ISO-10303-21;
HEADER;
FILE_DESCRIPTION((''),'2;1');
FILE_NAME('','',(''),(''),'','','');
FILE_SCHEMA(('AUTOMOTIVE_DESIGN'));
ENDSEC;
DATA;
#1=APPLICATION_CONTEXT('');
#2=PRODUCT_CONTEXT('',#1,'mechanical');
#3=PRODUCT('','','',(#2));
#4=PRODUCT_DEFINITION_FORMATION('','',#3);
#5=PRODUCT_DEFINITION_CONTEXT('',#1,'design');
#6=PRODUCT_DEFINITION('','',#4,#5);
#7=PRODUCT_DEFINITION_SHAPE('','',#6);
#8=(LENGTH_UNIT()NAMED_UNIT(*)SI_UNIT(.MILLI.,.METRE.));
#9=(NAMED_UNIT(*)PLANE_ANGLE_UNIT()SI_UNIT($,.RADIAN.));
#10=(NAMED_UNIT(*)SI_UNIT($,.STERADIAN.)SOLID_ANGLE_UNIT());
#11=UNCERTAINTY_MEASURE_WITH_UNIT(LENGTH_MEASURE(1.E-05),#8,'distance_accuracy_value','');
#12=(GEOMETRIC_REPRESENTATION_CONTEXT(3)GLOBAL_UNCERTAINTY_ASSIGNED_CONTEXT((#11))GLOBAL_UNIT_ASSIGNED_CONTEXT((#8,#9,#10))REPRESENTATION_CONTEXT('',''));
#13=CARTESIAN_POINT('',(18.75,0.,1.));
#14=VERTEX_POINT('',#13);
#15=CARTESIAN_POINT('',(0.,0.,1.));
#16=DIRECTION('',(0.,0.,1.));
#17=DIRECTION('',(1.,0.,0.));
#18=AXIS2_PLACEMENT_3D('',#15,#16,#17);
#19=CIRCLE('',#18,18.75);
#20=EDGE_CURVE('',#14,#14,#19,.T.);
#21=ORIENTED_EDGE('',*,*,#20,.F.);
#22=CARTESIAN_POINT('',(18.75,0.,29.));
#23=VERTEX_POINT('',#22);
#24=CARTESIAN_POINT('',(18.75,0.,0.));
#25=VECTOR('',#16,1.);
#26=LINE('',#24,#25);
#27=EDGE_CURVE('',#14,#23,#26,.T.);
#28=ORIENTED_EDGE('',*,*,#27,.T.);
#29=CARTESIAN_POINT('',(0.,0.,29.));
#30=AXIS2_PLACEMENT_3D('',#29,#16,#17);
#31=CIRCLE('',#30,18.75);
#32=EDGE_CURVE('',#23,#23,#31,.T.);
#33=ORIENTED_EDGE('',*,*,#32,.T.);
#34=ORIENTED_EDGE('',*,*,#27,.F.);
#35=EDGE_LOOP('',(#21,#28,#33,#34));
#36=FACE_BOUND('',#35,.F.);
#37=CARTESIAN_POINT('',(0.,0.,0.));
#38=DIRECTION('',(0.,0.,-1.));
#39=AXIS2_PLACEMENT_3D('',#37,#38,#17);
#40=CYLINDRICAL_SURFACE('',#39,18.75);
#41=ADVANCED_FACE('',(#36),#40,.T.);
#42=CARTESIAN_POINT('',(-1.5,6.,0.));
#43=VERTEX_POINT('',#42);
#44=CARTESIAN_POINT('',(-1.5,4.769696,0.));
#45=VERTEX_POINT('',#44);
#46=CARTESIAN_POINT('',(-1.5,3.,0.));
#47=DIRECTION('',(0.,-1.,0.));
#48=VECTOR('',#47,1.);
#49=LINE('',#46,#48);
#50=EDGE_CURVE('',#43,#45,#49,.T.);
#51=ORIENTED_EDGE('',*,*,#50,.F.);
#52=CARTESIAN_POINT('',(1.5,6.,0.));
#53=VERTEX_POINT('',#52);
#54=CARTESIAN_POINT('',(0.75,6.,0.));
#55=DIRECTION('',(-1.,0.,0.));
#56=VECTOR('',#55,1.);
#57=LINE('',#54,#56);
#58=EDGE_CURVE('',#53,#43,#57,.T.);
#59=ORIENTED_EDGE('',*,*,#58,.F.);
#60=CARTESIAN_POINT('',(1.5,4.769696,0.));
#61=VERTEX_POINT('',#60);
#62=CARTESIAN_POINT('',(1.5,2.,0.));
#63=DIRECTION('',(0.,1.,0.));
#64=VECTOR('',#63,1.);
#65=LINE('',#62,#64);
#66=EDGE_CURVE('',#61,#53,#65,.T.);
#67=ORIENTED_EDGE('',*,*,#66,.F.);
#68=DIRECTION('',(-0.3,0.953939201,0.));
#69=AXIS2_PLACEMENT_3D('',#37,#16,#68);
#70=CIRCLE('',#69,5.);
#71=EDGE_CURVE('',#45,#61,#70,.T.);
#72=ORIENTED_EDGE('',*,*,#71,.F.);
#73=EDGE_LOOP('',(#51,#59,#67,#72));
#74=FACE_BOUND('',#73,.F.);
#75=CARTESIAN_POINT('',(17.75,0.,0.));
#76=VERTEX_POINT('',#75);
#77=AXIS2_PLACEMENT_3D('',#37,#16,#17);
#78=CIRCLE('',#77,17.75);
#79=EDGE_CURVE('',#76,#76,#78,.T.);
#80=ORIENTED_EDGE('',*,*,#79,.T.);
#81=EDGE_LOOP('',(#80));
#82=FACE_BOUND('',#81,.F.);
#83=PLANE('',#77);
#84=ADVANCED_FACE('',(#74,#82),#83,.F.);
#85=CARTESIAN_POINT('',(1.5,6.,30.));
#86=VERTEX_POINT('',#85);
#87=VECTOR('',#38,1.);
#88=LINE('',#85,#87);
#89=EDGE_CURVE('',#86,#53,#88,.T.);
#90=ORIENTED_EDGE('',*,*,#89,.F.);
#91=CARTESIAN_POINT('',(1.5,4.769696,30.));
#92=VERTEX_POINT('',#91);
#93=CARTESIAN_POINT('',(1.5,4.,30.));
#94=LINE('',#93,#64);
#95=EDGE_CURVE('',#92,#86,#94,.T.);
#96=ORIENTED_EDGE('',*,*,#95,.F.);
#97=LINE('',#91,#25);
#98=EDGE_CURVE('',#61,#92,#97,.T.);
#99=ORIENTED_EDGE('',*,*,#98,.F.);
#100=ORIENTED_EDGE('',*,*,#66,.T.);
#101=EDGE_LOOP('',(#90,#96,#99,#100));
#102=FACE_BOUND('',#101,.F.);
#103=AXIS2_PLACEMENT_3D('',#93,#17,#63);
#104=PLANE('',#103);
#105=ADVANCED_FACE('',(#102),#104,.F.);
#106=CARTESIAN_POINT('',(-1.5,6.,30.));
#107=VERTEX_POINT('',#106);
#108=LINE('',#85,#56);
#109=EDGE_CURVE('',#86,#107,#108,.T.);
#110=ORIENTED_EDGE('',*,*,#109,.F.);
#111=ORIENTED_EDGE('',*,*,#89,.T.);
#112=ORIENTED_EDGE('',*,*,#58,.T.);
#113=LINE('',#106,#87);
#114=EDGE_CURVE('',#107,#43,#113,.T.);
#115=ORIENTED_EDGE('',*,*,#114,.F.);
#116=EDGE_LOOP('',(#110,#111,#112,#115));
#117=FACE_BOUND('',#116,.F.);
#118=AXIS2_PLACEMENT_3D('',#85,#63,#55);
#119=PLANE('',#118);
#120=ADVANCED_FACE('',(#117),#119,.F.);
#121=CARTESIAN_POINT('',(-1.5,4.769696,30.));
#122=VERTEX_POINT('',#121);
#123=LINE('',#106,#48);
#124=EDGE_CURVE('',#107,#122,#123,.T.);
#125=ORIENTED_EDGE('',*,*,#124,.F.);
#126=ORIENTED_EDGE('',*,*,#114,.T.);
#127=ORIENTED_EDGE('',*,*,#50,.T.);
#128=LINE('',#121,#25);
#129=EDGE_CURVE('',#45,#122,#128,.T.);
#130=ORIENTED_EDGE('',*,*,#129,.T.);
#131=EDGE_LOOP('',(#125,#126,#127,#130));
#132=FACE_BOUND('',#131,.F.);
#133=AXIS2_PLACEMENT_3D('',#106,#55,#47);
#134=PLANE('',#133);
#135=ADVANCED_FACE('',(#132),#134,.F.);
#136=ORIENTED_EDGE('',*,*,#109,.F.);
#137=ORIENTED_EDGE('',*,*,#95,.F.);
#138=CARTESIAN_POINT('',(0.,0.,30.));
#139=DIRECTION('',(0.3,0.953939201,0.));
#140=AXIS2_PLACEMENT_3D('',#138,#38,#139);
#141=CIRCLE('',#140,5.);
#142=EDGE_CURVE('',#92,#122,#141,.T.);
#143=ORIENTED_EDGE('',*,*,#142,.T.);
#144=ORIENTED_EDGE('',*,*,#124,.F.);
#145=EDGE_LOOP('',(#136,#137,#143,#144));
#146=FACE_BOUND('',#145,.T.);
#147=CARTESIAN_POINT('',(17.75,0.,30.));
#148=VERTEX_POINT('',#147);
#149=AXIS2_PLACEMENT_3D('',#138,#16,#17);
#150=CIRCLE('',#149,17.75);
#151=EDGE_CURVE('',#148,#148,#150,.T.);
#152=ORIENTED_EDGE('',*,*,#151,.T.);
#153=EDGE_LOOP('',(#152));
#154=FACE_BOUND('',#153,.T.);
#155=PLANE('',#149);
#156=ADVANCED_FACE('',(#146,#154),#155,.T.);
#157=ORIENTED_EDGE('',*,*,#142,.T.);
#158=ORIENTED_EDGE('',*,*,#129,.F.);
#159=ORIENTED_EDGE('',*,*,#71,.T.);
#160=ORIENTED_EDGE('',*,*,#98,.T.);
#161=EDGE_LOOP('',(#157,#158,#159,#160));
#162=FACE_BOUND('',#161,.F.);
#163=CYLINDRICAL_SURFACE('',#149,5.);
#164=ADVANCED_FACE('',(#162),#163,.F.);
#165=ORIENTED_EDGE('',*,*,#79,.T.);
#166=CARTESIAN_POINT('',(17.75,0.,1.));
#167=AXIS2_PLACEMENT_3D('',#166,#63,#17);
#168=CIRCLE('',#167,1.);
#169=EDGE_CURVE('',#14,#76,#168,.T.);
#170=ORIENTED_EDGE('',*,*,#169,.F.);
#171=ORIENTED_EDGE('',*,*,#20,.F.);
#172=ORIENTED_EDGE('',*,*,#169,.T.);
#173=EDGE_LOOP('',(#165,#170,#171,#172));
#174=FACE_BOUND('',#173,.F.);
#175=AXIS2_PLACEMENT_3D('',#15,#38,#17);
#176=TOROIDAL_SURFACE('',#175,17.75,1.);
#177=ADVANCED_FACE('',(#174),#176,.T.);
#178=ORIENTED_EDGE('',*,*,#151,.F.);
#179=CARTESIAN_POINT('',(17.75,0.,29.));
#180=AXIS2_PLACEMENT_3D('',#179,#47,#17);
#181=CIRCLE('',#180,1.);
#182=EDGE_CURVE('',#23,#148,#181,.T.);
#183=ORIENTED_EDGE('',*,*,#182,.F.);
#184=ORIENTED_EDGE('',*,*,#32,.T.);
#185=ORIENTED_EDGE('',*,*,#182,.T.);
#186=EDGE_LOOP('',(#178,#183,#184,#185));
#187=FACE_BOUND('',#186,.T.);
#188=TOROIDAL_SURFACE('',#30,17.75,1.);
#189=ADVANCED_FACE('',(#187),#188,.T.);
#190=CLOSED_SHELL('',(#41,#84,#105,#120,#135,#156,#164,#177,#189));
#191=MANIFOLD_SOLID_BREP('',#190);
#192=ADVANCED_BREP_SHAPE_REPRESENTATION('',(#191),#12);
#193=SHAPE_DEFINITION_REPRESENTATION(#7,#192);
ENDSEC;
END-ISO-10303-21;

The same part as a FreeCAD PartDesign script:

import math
import FreeCAD as App
import Part
import Sketcher
from FreeCAD import Vector
Q = App.Units.Quantity


def edges_at(feature, points):
    """Names of the edges that pass closest to the given points."""
    edges = feature.Shape.Edges
    near = lambda p: min(range(len(edges)), key=lambda i: edges[i].distToShape(Part.Vertex(*p))[0])
    return sorted({f"Edge{near(p) + 1}" for p in points})

doc = App.newDocument("Part")
params = doc.addObject("Spreadsheet::Sheet", "Params")
for row, (alias, value) in enumerate([
    ("sketch1_diameter", "37.5 mm"),
    ("pad1_length", "30 mm"),
    ("sketch2_radius", "5 mm"),
    ("sketch2_width", "3 mm"),
    ("fillet_radius", "1 mm"),
], start=1):
    params.set(f"A{row}", alias)
    params.set(f"B{row}", "=" + value)
    params.setAlias(f"B{row}", alias)

body = doc.addObject("PartDesign::Body", "Body")

sketch1 = doc.addObject("Sketcher::SketchObject", "Sketch")
body.addObject(sketch1)
sketch1.AttachmentSupport = (doc.XY_Plane, [""])
sketch1.MapMode = "FlatFace"
sketch1.addGeometry(Part.Circle(Vector(0, 0, 0), Vector(0, 0, 1), 18.75), False)
sketch1.addConstraint([
    Sketcher.Constraint("Coincident", 0, 3, -1, 1),
    Sketcher.Constraint("Diameter", 0, Q("37.5 mm")),
])
sketch1.setExpression("Constraints[1]", "Params.sketch1_diameter")
pad1 = doc.addObject("PartDesign::Pad", "Pad")
body.addObject(pad1)
pad1.Profile = sketch1
pad1.setExpression("Length", "Params.pad1_length")

sketch2 = doc.addObject("Sketcher::SketchObject", "Sketch001")
body.addObject(sketch2)
sketch2.AttachmentSupport = (doc.XY_Plane, [""])
sketch2.MapMode = "FlatFace"
sketch2.AttachmentOffset = App.Placement(Vector(0, 0, 30), App.Rotation())
sketch2.addGeometry([
    Part.ArcOfCircle(Part.Circle(Vector(0, 0, 0), Vector(0, 0, 1), 5), math.radians(107.457603), math.radians(432.542397)),
    Part.LineSegment(Vector(1.5, 4.769696, 0), Vector(1.5, 6, 0)),
    Part.LineSegment(Vector(1.5, 6, 0), Vector(-1.5, 6, 0)),
    Part.LineSegment(Vector(-1.5, 6, 0), Vector(-1.5, 4.769696, 0)),
], False)
sketch2.addConstraint([
    Sketcher.Constraint("Coincident", 0, 2, 1, 1),
    Sketcher.Constraint("Coincident", 1, 2, 2, 1),
    Sketcher.Constraint("Coincident", 2, 2, 3, 1),
    Sketcher.Constraint("Coincident", 3, 2, 0, 1),
    Sketcher.Constraint("Vertical", 1),
    Sketcher.Constraint("Horizontal", 2),
    Sketcher.Constraint("Vertical", 3),
    Sketcher.Constraint("Coincident", 0, 3, -1, 1),
    Sketcher.Constraint("Horizontal", 0, 2, 3, 2),
    Sketcher.Constraint("Radius", 0, Q("5 mm")),
    Sketcher.Constraint("DistanceX", 2, 2, 2, 1, Q("3 mm")),
    Sketcher.Constraint("DistanceY", -1, 1, 1, 2, Q("6 mm")),
])
sketch2.setExpression("Constraints[9]", "Params.sketch2_radius")
sketch2.setExpression("Constraints[10]", "Params.sketch2_width")
pocket1 = doc.addObject("PartDesign::Pocket", "Pocket")
body.addObject(pocket1)
pocket1.Profile = sketch2
pocket1.Type = "ThroughAll"
doc.recompute()

fillet = doc.addObject("PartDesign::Fillet", "Fillet")
body.addObject(fillet)
fillet.Base = (pocket1, edges_at(pocket1, [(-18.75, 0, 30), (-18.75, 0, 0)]))
fillet.setExpression("Radius", "Params.fillet_radius")

doc.recompute()
